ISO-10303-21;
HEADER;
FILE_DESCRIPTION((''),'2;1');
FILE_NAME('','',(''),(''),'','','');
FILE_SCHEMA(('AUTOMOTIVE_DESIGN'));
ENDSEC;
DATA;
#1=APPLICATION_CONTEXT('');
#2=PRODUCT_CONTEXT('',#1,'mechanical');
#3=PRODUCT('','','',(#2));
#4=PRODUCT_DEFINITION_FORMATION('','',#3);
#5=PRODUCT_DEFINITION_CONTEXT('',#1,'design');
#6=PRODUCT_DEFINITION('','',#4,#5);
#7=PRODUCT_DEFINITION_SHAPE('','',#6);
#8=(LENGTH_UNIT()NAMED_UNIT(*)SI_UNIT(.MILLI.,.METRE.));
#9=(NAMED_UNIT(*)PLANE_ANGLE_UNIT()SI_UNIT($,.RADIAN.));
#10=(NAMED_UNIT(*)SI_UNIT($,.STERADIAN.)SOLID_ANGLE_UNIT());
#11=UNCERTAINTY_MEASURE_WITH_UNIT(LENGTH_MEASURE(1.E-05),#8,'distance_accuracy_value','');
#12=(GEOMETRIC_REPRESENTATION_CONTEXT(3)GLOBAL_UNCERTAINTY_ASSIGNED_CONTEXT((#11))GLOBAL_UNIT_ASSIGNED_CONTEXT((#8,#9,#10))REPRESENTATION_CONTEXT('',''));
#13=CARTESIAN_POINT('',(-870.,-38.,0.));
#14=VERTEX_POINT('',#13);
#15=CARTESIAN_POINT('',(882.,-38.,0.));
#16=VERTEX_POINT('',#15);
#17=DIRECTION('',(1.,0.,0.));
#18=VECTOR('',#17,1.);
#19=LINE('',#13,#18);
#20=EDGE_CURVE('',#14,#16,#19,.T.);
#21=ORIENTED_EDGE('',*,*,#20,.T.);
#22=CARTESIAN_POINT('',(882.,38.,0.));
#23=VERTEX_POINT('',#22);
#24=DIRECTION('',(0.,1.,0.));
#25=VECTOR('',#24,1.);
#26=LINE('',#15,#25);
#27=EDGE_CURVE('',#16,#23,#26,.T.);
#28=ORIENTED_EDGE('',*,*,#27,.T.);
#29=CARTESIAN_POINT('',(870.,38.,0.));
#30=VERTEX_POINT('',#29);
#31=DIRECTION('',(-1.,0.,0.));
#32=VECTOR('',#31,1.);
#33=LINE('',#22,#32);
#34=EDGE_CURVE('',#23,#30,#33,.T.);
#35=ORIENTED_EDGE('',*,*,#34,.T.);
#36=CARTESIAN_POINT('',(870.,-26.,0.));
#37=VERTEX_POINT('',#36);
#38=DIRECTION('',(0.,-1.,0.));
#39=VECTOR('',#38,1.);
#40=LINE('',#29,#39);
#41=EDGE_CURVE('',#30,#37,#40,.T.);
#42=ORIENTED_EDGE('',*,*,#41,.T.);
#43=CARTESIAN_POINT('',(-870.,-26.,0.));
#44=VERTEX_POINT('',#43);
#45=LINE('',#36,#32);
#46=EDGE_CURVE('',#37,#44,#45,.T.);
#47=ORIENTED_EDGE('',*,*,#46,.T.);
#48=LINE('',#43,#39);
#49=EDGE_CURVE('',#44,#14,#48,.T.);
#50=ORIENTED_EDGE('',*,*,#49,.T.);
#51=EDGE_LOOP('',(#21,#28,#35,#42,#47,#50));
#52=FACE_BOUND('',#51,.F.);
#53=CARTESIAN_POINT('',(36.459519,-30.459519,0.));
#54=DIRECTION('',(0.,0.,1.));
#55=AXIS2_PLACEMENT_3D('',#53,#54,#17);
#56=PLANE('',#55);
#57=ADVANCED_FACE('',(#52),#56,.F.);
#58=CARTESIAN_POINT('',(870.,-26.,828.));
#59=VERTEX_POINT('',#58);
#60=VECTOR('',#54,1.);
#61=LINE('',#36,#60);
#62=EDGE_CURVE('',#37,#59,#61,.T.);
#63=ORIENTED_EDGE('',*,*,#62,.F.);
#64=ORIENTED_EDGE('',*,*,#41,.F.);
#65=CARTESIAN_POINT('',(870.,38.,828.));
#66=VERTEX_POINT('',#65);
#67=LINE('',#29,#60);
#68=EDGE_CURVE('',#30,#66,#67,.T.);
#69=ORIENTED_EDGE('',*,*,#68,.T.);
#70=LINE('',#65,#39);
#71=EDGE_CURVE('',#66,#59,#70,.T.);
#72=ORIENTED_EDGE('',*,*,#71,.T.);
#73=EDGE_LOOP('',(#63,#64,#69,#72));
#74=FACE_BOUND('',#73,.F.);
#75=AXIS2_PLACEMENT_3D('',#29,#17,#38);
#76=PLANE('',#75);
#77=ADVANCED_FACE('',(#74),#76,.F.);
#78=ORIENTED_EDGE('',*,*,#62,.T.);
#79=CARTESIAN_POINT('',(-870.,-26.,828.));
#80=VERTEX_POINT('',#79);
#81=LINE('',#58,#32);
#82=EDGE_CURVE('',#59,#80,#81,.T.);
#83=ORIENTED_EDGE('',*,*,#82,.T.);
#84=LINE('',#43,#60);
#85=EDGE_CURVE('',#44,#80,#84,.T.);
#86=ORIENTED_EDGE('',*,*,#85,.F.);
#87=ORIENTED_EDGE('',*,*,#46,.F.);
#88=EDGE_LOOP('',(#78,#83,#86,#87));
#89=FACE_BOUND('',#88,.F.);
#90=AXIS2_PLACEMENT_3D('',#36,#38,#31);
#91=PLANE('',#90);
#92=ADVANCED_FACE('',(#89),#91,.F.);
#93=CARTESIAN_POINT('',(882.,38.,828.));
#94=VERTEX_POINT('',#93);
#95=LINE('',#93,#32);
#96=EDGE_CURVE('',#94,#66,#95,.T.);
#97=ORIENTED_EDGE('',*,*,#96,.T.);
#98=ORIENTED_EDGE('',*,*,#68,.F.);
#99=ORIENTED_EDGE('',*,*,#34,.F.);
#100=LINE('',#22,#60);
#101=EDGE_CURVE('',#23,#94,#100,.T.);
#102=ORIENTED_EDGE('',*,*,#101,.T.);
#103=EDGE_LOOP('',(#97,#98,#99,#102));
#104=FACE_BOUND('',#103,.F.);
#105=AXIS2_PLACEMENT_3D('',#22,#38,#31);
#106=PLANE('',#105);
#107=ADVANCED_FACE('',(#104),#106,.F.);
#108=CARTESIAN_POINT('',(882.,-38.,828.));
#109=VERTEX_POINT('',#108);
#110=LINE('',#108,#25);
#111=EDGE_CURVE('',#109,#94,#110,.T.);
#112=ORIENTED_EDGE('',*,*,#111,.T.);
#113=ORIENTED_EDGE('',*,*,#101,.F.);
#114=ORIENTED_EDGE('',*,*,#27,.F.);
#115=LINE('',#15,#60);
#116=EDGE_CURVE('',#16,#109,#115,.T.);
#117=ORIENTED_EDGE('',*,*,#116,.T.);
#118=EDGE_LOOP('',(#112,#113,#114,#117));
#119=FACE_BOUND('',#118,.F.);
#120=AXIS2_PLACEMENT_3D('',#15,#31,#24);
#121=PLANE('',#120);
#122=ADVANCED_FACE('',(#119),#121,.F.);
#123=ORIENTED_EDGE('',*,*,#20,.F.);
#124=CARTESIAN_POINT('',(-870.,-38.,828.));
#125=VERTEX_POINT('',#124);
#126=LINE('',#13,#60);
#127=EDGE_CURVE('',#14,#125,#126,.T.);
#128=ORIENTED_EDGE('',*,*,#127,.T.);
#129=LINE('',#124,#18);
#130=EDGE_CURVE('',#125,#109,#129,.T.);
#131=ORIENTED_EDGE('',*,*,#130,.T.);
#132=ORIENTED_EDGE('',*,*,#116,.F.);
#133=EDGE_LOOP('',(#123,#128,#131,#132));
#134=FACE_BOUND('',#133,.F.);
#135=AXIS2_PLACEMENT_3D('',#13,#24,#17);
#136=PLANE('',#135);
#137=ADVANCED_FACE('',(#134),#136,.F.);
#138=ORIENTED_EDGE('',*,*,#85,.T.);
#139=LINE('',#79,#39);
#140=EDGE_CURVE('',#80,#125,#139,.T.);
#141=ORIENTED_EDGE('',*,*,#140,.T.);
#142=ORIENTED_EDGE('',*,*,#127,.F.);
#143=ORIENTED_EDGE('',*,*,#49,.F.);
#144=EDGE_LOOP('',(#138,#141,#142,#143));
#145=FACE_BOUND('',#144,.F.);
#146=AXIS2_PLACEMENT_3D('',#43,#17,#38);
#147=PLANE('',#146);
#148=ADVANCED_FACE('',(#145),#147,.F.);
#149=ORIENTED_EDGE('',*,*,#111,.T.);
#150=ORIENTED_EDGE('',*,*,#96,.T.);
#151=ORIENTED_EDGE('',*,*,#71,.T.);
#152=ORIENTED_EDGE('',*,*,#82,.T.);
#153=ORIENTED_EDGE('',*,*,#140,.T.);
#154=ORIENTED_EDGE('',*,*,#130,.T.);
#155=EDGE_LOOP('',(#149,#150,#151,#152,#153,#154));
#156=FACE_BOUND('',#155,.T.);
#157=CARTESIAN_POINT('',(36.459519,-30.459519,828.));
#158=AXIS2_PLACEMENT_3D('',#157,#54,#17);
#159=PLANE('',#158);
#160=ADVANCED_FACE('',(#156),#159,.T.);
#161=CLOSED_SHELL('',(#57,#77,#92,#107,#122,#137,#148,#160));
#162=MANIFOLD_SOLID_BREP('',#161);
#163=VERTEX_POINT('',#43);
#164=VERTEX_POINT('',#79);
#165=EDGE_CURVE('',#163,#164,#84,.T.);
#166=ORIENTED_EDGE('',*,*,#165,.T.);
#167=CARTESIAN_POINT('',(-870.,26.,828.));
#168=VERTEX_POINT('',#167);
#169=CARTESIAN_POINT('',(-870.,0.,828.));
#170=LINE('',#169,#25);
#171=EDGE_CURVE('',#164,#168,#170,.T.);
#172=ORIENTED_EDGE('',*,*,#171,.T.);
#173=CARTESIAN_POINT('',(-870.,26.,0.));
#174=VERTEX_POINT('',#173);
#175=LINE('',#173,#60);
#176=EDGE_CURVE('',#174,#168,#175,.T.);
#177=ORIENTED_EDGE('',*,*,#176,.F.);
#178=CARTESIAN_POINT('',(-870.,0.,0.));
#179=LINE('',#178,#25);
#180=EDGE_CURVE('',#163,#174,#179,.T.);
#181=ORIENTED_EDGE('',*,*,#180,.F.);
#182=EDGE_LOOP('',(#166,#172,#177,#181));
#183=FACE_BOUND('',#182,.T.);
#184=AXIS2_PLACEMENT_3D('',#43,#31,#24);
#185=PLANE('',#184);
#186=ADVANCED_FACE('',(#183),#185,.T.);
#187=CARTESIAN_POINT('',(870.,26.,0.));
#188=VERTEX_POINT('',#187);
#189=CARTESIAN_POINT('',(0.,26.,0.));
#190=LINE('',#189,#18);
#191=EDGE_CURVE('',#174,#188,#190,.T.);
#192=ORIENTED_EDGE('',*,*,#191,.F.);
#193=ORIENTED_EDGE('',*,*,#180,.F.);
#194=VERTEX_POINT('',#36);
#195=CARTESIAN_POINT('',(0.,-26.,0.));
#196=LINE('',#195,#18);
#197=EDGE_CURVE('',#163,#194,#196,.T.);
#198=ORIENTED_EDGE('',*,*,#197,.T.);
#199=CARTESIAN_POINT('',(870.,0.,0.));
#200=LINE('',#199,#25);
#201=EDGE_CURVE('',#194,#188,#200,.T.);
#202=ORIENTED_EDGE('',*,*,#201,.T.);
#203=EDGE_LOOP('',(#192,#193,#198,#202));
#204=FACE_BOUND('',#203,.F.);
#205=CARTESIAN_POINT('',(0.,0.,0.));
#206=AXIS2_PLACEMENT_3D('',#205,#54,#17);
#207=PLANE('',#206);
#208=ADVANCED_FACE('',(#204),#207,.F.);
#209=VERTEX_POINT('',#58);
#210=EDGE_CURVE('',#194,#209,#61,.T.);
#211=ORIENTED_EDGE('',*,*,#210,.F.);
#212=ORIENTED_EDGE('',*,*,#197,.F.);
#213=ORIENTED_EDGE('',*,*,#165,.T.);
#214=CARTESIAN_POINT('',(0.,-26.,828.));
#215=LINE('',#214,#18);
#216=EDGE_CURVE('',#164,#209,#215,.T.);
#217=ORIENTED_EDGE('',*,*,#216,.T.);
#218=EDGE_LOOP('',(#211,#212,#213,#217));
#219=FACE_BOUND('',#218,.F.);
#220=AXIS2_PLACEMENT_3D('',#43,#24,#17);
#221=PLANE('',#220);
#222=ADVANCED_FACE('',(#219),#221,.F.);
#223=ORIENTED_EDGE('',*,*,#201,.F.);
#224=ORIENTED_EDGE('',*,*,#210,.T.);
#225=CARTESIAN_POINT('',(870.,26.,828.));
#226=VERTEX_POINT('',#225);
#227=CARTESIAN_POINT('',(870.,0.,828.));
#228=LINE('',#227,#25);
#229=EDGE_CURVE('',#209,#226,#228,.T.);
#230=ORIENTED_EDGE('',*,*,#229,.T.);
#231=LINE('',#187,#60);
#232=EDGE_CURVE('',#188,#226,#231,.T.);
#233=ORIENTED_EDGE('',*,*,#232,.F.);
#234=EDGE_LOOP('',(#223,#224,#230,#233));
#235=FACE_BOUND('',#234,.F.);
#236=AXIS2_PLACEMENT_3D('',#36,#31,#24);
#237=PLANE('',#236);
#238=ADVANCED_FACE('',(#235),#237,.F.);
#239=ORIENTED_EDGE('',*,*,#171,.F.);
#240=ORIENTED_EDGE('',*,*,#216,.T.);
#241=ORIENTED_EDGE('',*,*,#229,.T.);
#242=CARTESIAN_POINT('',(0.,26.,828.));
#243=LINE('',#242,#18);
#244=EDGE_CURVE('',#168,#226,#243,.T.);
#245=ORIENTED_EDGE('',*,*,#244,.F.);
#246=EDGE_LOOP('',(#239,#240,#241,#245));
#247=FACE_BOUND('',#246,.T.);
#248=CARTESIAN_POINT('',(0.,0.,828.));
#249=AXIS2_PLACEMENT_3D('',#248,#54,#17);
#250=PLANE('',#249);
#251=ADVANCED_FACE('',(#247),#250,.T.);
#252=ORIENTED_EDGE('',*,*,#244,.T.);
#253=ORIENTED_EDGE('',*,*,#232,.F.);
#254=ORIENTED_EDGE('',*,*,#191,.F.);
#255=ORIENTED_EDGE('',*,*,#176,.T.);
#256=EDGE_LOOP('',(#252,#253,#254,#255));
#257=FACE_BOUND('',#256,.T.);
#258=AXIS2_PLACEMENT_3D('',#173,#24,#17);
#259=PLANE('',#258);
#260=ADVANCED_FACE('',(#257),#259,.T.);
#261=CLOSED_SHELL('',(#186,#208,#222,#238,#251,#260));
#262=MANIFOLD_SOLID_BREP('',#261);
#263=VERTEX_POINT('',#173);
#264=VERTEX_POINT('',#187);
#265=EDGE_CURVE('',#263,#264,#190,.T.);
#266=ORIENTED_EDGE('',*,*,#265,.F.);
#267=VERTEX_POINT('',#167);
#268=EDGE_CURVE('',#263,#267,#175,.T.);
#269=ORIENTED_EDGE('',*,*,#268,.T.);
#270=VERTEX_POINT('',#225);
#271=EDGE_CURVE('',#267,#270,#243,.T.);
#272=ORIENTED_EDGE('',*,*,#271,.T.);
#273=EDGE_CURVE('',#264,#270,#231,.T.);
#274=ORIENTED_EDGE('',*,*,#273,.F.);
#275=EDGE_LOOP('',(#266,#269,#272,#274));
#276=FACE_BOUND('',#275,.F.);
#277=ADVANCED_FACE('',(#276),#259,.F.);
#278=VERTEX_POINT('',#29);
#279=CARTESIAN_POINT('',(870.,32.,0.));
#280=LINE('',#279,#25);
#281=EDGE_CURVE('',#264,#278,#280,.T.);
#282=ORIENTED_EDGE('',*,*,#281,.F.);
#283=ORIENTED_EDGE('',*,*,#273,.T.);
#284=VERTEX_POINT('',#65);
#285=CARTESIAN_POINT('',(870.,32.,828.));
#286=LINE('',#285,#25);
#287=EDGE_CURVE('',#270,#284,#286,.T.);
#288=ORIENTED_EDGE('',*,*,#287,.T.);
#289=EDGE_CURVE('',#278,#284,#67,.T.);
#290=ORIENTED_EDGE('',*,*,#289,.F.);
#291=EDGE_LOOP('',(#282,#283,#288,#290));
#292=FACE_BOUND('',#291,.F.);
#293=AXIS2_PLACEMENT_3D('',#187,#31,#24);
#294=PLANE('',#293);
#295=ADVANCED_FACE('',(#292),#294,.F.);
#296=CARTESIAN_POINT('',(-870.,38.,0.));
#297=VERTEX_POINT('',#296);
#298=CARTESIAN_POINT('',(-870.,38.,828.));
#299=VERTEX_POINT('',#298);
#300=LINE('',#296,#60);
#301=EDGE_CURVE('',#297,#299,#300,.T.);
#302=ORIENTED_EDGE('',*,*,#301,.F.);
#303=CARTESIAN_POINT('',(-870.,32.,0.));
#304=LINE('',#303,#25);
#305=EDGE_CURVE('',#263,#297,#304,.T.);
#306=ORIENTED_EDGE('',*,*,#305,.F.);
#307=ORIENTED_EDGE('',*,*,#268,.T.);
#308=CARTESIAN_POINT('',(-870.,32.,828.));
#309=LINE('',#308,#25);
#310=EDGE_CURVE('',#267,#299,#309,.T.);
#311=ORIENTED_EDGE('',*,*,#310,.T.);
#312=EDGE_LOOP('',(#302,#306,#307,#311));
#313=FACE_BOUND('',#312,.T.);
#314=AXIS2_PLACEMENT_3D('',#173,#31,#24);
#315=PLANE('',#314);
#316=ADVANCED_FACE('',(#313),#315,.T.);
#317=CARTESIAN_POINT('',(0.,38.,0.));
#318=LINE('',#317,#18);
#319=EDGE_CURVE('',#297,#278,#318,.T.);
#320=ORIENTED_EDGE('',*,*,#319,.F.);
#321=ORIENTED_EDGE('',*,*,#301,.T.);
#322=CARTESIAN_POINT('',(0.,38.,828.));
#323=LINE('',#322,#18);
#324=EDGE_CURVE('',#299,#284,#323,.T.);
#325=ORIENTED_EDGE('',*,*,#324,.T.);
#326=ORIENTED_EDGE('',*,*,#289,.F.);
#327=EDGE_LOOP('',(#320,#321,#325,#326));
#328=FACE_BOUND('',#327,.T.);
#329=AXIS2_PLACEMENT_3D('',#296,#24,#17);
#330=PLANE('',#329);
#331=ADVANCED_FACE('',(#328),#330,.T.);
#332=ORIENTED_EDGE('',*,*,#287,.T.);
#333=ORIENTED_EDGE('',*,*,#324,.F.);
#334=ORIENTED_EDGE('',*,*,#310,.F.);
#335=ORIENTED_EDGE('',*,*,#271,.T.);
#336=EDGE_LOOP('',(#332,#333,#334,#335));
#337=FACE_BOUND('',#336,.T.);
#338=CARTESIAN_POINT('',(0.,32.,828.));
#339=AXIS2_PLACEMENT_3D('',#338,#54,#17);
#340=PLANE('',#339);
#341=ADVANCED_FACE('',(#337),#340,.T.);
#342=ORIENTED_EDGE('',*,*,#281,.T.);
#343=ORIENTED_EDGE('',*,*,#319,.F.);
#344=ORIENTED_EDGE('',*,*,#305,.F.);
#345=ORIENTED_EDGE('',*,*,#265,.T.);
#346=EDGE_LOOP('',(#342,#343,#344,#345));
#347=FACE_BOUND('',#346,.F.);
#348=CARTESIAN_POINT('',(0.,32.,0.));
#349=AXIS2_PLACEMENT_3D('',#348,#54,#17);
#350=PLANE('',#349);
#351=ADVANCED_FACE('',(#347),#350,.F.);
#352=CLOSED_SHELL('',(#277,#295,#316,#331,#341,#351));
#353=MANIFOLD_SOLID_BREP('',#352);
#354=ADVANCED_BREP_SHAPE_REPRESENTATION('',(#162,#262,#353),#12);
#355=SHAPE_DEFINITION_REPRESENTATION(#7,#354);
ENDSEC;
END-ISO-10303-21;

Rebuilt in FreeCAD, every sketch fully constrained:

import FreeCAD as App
import Part
import Sketcher

V = App.Vector
Q = App.Units.Quantity


def add_polygon(sketch, points):
    """Adds a closed chain of lines whose ends are joined by coincident constraints."""
    first, n = sketch.GeometryCount, len(points)
    for a, b in zip(points, points[1:] + points[:1]):
        sketch.addGeometry(Part.LineSegment(App.Vector(*a, 0), App.Vector(*b, 0)), False)
    for i in range(n):
        sketch.addConstraint(Sketcher.Constraint("Coincident", first + i, 2, first + (i + 1) % n, 1))

doc = App.newDocument("Part")
params = doc.addObject("Spreadsheet::Sheet", "Params")
for row, (alias, value) in enumerate([
    ("sketch1_width", "1740 mm"),
    ("sketch1_height", "52 mm"),
    ("pad1_length", "828 mm"),
    ("sketch2_width", "1740 mm"),
    ("sketch2_width2", "1752 mm"),
    ("sketch2_height", "76 mm"),
    ("pad2_length", "828 mm"),
    ("sketch3_width", "1740 mm"),
    ("sketch3_height", "12 mm"),
    ("pad3_length", "828 mm"),
], start=1):
    params.set(f"A{row}", alias)
    params.set(f"B{row}", "=" + value)
    params.setAlias(f"B{row}", alias)

body = doc.addObject("PartDesign::Body", "Body")

# Sketch on XY plane
sketch1 = body.newObject("Sketcher::SketchObject", "Sketch")
sketch1.AttachmentSupport = (doc.getObject("XY_Plane"), [""])
sketch1.MapMode = "FlatFace"
add_polygon(sketch1, [(-870, 26), (-870, -26), (870, -26), (870, 26)])  # lines 0-3
sketch1.addConstraint([
    Sketcher.Constraint("Vertical", 0),
    Sketcher.Constraint("Horizontal", 1),
    Sketcher.Constraint("Vertical", 2),
    Sketcher.Constraint("Horizontal", 3),
    Sketcher.Constraint("Symmetric", 0, 2, 2, 2, -1, 1),
    Sketcher.Constraint("DistanceX", 1, 1, 1, 2, Q("1740 mm")),
    Sketcher.Constraint("DistanceY", 0, 2, 0, 1, Q("52 mm")),
])
sketch1.setExpression("Constraints[9]", "Params.sketch1_width")
sketch1.setExpression("Constraints[10]", "Params.sketch1_height")
pad1 = body.newObject("PartDesign::Pad", "Pad")
pad1.Profile = sketch1
pad1.setExpression("Length", "Params.pad1_length")
body2 = doc.addObject("PartDesign::Body", "Body001")

# Sketch on XY plane
sketch2 = body2.newObject("Sketcher::SketchObject", "Sketch001")
sketch2.AttachmentSupport = (doc.getObject("XY_Plane001"), [""])
sketch2.MapMode = "FlatFace"
add_polygon(sketch2, [(870, -26), (-870, -26), (-870, -38), (882, -38), (882, 38), (870, 38)])  # lines 0-5
sketch2.addConstraint([
    Sketcher.Constraint("Horizontal", 0),
    Sketcher.Constraint("Vertical", 1),
    Sketcher.Constraint("Horizontal", 2),
    Sketcher.Constraint("Vertical", 3),
    Sketcher.Constraint("Horizontal", 4),
    Sketcher.Constraint("Vertical", 5),
    Sketcher.Constraint("Symmetric", 1, 2, 4, 2, -1, 1),
    Sketcher.Constraint("Equal", 4, 1),
    Sketcher.Constraint("DistanceX", 0, 2, 0, 1, Q("1740 mm")),
    Sketcher.Constraint("DistanceX", 2, 1, 2, 2, Q("1752 mm")),
    Sketcher.Constraint("DistanceY", 3, 1, 3, 2, Q("76 mm")),
])
sketch2.setExpression("Constraints[14]", "Params.sketch2_width")
sketch2.setExpression("Constraints[15]", "Params.sketch2_width2")
sketch2.setExpression("Constraints[16]", "Params.sketch2_height")
pad2 = body2.newObject("PartDesign::Pad", "Pad001")
pad2.Profile = sketch2
pad2.setExpression("Length", "Params.pad2_length")
body3 = doc.addObject("PartDesign::Body", "Body002")

# Sketch on XY plane
sketch3 = body3.newObject("Sketcher::SketchObject", "Sketch002")
sketch3.AttachmentSupport = (doc.getObject("XY_Plane002"), [""])
sketch3.MapMode = "FlatFace"
add_polygon(sketch3, [(-870, 38), (-870, 26), (870, 26), (870, 38)])  # lines 0-3
sketch3.addConstraint([
    Sketcher.Constraint("Vertical", 0),
    Sketcher.Constraint("Horizontal", 1),
    Sketcher.Constraint("Vertical", 2),
    Sketcher.Constraint("Horizontal", 3),
    Sketcher.Constraint("DistanceX", 1, 1, 1, 2, Q("1740 mm")),
    Sketcher.Constraint("DistanceY", 0, 2, 0, 1, Q("12 mm")),
    Sketcher.Constraint("DistanceX", 0, 2, -1, 1, Q("870 mm")),
    Sketcher.Constraint("DistanceY", -1, 1, 0, 2, Q("26 mm")),
])
sketch3.setExpression("Constraints[8]", "Params.sketch3_width")
sketch3.setExpression("Constraints[9]", "Params.sketch3_height")
pad3 = body3.newObject("PartDesign::Pad", "Pad002")
pad3.Profile = sketch3
pad3.setExpression("Length", "Params.pad3_length")

doc.recompute()
